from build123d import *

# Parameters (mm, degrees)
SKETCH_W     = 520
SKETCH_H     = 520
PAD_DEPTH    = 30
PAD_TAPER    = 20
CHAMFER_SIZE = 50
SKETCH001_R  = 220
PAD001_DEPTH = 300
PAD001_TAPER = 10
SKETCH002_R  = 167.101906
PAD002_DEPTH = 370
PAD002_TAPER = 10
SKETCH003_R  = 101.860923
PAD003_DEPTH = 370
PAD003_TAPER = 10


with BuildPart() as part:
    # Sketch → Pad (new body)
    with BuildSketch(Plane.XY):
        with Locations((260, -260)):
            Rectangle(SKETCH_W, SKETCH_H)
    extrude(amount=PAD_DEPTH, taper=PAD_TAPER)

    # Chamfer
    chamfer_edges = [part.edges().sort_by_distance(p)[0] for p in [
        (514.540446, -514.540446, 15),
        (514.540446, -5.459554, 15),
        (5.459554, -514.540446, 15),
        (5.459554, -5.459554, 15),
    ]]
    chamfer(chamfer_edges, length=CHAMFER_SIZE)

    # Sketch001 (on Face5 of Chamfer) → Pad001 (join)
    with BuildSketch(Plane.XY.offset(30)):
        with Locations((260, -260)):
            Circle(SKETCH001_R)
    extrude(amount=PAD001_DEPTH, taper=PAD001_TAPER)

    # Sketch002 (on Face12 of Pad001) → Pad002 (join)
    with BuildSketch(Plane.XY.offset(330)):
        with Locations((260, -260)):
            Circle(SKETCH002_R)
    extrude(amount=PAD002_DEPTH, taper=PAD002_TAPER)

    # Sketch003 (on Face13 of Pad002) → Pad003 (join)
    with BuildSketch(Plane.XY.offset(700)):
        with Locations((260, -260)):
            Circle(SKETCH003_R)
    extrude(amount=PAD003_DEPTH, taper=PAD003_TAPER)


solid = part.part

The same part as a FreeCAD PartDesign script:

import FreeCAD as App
import Part
import Sketcher
Q = App.Units.Quantity


def edges_at(feature, points):
    """Names of the edges that pass closest to the given points."""
    edges = feature.Shape.Edges
    near = lambda p: min(range(len(edges)), key=lambda i: edges[i].distToShape(Part.Vertex(*p))[0])
    return sorted({f"Edge{near(p) + 1}" for p in points})

doc = App.newDocument("Part")
body = doc.addObject("PartDesign::Body", "Body")

# Sketch on XY plane
sketch1 = body.newObject("Sketcher::SketchObject", "Sketch")
sketch1.AttachmentSupport = (doc.getObject("XY_Plane"), [""])
sketch1.MapMode = "FlatFace"
sketch1.addGeometry([
    Part.LineSegment(App.Vector(0, 0, 0), App.Vector(0, -520, 0)),
    Part.LineSegment(App.Vector(0, -520, 0), App.Vector(520, -520, 0)),
    Part.LineSegment(App.Vector(520, -520, 0), App.Vector(520, 0, 0)),
    Part.LineSegment(App.Vector(520, 0, 0), App.Vector(0, 0, 0)),
], False)
sketch1.addConstraint([
    Sketcher.Constraint("Coincident", 0, 2, 1, 1),
    Sketcher.Constraint("Coincident", 1, 2, 2, 1),
    Sketcher.Constraint("Coincident", 2, 2, 3, 1),
    Sketcher.Constraint("Coincident", 3, 2, 0, 1),
    Sketcher.Constraint("Vertical", 0),
    Sketcher.Constraint("Horizontal", 1),
    Sketcher.Constraint("Vertical", 2),
    Sketcher.Constraint("Horizontal", 3),
    Sketcher.Constraint("Coincident", 3, 2, -1, 1),
    Sketcher.Constraint("Equal", 3, 0),
    Sketcher.Constraint("DistanceX", 1, 1, 1, 2, Q("520 mm")),
])
pad1 = body.newObject("PartDesign::Pad", "Pad")
pad1.Profile = sketch1
pad1.Length = 30
pad1.TaperAngle = -20
doc.recompute()

chamfer = body.newObject("PartDesign::Chamfer", "Chamfer")
chamfer.Base = (pad1, edges_at(pad1, [
    (514.54, -514.54, 15),
    (514.54, -5.46, 15),
    (5.46, -514.54, 15),
    (5.46, -5.46, 15),
]))
chamfer.Size = 50

# Sketch on XY plane
sketch2 = body.newObject("Sketcher::SketchObject", "Sketch001")
sketch2.AttachmentSupport = (doc.getObject("XY_Plane"), [""])
sketch2.MapMode = "FlatFace"
sketch2.AttachmentOffset = App.Placement(App.Vector(0, 0, 30), App.Rotation())
sketch2.addGeometry(Part.Circle(App.Vector(260, -260, 0), App.Vector(0, 0, 1), 220), False)
sketch2.addConstraint([
    Sketcher.Constraint("Diameter", 0, Q("440 mm")),
    Sketcher.Constraint("DistanceX", -1, 1, 0, 3, Q("260 mm")),
    Sketcher.Constraint("DistanceY", 0, 3, -1, 1, Q("260 mm")),
])
pad2 = body.newObject("PartDesign::Pad", "Pad001")
pad2.Profile = sketch2
pad2.Length = 300
pad2.TaperAngle = -10

# Sketch on XY plane
sketch3 = body.newObject("Sketcher::SketchObject", "Sketch002")
sketch3.AttachmentSupport = (doc.getObject("XY_Plane"), [""])
sketch3.MapMode = "FlatFace"
sketch3.AttachmentOffset = App.Placement(App.Vector(0, 0, 330), App.Rotation())
sketch3.addGeometry(Part.Circle(App.Vector(260, -260, 0), App.Vector(0, 0, 1), 167), False)
sketch3.addConstraint([
    Sketcher.Constraint("DistanceX", -1, 1, 0, 3, Q("260 mm")),
    Sketcher.Constraint("DistanceY", 0, 3, -1, 1, Q("260 mm")),
    Sketcher.Constraint("Diameter", 0, Q("334.203812 mm")),
])
pad3 = body.newObject("PartDesign::Pad", "Pad002")
pad3.Profile = sketch3
pad3.Length = 370
pad3.TaperAngle = -10

# Sketch on XY plane
sketch4 = body.newObject("Sketcher::SketchObject", "Sketch003")
sketch4.AttachmentSupport = (doc.getObject("XY_Plane"), [""])
sketch4.MapMode = "FlatFace"
sketch4.AttachmentOffset = App.Placement(App.Vector(0, 0, 700), App.Rotation())
sketch4.addGeometry(Part.Circle(App.Vector(260, -260, 0), App.Vector(0, 0, 1), 102), False)
sketch4.addConstraint([
    Sketcher.Constraint("DistanceX", -1, 1, 0, 3, Q("260 mm")),
    Sketcher.Constraint("DistanceY", 0, 3, -1, 1, Q("260 mm")),
    Sketcher.Constraint("Diameter", 0, Q("203.721846 mm")),
])
pad4 = body.newObject("PartDesign::Pad", "Pad003")
pad4.Profile = sketch4
pad4.Length = 370
pad4.TaperAngle = -10

doc.recompute()
